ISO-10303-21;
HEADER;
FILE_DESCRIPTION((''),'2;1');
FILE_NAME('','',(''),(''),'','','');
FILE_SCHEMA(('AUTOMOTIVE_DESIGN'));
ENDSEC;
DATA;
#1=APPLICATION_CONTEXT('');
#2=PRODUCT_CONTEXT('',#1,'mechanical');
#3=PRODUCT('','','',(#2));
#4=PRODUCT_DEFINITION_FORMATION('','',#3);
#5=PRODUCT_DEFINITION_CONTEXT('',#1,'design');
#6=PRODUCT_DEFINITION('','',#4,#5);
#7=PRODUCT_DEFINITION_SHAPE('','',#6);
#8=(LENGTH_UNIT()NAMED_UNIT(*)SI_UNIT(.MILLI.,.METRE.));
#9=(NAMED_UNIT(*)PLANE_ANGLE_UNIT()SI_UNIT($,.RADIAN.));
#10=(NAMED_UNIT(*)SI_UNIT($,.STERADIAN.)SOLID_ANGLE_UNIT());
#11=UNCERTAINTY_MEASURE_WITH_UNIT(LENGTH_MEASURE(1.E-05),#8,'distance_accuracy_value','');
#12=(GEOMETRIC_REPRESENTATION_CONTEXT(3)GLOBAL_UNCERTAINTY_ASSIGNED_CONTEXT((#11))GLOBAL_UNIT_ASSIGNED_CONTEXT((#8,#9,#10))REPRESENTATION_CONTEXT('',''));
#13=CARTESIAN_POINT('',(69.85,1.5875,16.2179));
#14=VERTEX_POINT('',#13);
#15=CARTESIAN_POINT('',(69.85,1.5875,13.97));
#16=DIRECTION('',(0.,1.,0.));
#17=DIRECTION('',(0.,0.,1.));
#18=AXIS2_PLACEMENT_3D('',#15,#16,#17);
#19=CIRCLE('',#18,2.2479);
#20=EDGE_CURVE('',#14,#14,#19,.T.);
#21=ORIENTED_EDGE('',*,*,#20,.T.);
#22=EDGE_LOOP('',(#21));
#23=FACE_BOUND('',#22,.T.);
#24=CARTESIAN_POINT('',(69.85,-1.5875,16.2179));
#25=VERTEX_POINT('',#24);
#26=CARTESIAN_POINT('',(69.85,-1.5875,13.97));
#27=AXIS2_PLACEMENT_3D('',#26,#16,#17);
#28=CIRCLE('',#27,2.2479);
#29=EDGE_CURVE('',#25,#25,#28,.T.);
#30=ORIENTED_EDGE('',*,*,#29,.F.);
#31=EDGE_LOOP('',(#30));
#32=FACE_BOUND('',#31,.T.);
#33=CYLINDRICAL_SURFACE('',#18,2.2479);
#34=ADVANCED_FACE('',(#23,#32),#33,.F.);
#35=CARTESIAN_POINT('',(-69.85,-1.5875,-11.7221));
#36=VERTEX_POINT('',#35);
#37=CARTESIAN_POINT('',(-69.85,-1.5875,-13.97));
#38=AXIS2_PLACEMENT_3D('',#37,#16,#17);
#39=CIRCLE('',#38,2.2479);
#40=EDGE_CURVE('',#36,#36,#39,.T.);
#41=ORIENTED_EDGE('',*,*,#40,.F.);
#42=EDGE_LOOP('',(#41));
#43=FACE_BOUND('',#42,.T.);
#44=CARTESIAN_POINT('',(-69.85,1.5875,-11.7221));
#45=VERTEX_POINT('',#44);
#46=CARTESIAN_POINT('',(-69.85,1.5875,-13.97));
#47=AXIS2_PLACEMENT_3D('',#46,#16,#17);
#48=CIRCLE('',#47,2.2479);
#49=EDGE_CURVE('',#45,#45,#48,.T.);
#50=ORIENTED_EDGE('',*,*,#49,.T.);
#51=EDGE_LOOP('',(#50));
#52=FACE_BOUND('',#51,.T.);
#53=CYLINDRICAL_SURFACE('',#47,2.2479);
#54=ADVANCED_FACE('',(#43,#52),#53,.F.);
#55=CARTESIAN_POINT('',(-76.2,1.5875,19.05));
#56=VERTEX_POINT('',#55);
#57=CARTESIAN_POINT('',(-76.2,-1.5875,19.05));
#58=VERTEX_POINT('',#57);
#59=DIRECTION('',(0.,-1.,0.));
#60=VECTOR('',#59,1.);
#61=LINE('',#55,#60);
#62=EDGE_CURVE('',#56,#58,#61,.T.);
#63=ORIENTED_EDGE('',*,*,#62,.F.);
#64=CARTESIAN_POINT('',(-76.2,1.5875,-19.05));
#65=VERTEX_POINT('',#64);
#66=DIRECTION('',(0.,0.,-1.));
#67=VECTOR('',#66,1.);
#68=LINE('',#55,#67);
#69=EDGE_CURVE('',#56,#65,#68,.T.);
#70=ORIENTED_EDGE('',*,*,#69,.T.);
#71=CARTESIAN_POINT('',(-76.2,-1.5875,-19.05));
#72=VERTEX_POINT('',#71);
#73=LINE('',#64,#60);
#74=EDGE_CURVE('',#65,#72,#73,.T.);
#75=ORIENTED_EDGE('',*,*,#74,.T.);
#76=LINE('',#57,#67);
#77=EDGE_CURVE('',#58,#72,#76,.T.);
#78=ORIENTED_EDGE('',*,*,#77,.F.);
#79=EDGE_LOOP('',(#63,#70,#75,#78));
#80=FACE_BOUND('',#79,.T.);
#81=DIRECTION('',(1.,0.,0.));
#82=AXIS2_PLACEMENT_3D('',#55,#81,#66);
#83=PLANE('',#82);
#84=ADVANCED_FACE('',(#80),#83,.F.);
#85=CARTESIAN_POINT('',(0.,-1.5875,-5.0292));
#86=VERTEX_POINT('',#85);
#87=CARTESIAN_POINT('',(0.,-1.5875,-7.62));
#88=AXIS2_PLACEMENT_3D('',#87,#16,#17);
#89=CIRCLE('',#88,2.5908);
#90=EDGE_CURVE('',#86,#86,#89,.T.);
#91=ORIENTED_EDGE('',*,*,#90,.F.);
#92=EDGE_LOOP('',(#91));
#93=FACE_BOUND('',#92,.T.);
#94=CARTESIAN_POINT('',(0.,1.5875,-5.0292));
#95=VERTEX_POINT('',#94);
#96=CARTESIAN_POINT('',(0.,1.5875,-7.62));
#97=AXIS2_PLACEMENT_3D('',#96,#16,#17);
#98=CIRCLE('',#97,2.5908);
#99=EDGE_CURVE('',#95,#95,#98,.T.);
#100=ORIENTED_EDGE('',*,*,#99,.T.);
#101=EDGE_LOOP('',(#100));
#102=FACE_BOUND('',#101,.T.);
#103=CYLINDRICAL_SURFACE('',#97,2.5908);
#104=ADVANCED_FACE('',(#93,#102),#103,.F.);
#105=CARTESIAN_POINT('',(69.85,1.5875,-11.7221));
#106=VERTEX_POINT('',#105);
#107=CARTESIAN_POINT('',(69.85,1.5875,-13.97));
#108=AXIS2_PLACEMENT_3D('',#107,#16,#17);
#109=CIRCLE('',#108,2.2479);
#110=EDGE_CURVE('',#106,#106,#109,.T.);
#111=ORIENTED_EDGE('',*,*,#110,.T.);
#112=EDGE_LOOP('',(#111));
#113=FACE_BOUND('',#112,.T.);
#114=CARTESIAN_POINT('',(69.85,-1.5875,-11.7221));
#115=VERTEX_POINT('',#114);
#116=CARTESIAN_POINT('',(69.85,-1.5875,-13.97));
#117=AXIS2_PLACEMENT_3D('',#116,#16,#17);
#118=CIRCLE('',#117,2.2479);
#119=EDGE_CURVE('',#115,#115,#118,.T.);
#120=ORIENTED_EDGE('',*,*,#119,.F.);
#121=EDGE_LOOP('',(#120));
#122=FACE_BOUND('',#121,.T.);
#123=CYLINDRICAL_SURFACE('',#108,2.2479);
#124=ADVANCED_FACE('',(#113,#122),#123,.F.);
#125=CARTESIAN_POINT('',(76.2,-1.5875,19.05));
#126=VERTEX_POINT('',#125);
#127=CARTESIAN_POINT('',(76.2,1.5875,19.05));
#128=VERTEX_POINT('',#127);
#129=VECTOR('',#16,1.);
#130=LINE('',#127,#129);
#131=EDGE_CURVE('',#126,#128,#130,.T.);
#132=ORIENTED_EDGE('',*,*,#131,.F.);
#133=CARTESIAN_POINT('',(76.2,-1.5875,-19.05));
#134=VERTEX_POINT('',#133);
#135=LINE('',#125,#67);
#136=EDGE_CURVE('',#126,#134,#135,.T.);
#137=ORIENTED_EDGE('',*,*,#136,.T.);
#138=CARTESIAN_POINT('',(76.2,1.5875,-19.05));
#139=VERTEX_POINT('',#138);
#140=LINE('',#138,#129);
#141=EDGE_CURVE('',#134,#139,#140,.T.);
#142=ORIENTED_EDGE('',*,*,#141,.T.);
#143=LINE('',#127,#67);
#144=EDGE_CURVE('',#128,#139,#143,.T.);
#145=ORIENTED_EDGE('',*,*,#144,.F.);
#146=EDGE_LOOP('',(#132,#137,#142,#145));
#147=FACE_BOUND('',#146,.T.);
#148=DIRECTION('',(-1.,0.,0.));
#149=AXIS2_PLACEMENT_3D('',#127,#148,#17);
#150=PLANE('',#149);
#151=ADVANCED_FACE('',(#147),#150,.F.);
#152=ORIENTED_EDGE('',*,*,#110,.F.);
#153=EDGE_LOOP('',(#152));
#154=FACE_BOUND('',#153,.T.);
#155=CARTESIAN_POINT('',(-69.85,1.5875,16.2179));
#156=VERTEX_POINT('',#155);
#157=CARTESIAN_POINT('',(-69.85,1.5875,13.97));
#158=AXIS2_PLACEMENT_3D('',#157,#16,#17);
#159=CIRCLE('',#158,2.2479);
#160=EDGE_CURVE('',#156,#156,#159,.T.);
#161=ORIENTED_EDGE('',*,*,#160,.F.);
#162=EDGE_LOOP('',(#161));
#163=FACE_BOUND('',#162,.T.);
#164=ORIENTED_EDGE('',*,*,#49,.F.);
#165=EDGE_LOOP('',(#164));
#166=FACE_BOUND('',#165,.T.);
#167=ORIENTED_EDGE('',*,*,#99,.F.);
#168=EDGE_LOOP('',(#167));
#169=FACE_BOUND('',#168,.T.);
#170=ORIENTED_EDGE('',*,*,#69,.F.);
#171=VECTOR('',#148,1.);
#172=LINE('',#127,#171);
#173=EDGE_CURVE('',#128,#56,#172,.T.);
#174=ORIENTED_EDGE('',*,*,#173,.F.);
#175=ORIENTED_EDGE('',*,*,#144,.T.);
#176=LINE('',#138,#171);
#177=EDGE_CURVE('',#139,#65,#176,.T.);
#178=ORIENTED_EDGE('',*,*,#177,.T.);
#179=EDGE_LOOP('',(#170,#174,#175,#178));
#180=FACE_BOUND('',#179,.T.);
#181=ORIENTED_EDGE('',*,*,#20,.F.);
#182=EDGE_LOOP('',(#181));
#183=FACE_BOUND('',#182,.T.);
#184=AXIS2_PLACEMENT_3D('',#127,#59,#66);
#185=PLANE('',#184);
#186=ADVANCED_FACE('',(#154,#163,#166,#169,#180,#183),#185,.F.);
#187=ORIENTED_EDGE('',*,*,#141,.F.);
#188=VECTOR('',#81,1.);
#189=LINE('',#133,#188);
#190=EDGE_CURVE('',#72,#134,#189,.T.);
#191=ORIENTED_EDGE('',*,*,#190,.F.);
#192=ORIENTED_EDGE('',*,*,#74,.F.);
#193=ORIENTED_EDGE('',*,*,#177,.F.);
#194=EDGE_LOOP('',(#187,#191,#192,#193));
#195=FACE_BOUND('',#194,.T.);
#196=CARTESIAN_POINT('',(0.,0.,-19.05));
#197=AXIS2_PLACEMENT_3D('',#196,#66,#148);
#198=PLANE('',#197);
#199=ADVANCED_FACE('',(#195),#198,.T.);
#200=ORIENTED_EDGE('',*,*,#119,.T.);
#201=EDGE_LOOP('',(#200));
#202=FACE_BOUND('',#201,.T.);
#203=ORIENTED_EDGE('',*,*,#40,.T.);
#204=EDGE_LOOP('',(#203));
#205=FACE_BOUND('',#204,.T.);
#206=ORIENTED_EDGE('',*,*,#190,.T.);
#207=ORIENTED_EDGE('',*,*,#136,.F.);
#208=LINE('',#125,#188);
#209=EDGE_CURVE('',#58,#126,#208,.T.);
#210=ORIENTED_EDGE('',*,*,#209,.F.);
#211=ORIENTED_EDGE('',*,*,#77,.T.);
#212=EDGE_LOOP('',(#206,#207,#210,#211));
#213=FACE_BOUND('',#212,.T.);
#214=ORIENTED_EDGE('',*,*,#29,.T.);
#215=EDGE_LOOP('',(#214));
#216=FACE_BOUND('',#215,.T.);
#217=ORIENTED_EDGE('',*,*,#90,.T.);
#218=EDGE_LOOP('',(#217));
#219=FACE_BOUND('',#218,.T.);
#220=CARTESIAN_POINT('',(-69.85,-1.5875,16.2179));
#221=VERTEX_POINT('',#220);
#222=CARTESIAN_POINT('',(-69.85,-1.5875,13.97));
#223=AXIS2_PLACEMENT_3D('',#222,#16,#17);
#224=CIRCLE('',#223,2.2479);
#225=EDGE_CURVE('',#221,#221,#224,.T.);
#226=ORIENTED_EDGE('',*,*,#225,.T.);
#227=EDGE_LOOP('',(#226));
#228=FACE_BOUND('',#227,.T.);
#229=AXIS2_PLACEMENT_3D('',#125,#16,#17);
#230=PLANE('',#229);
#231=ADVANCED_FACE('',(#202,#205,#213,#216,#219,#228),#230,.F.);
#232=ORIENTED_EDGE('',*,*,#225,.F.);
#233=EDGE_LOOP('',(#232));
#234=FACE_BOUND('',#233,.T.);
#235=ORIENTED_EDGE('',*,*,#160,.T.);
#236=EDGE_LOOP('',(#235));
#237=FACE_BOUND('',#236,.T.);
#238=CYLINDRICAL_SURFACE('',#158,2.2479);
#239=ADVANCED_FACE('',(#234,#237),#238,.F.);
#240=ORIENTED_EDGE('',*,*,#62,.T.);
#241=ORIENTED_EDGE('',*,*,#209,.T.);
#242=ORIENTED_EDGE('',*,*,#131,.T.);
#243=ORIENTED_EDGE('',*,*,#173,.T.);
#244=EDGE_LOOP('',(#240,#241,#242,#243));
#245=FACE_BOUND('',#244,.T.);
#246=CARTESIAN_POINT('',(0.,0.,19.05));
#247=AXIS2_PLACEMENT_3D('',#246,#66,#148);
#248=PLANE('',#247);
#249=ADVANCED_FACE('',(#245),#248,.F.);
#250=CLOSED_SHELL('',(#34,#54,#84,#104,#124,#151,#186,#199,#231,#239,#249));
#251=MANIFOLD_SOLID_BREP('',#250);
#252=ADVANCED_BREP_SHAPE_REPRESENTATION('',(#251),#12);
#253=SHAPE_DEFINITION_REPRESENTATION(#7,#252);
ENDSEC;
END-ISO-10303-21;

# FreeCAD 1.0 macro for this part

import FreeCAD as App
import Part
import Sketcher
from FreeCAD import Vector
Q = App.Units.Quantity

doc = App.newDocument("Part")
body = doc.addObject("PartDesign::Body", "Body")

# Sketch on XY plane
sketch1 = body.newObject("Sketcher::SketchObject", "Sketch")
sketch1.AttachmentSupport = (doc.getObject("XY_Plane"), [""])
sketch1.MapMode = "FlatFace"
sketch1.addGeometry([
    Part.LineSegment(Vector(-76.2, 1.5875, 0), Vector(-76.2, -1.5875, 0)),
    Part.LineSegment(Vector(-76.2, -1.5875, 0), Vector(76.2, -1.5875, 0)),
    Part.LineSegment(Vector(76.2, -1.5875, 0), Vector(76.2, 1.5875, 0)),
    Part.LineSegment(Vector(76.2, 1.5875, 0), Vector(-76.2, 1.5875, 0)),
], False)
sketch1.addConstraint([
    Sketcher.Constraint("Coincident", 0, 2, 1, 1),
    Sketcher.Constraint("Coincident", 1, 2, 2, 1),
    Sketcher.Constraint("Coincident", 2, 2, 3, 1),
    Sketcher.Constraint("Coincident", 3, 2, 0, 1),
    Sketcher.Constraint("Vertical", 0),
    Sketcher.Constraint("Horizontal", 1),
    Sketcher.Constraint("Vertical", 2),
    Sketcher.Constraint("Horizontal", 3),
    Sketcher.Constraint("Symmetric", 0, 2, 2, 2, -1, 1),
    Sketcher.Constraint("DistanceX", 1, 1, 1, 2, Q("6 in")),
    Sketcher.Constraint("DistanceY", 0, 2, 0, 1, Q("0.125 in")),
])
pad1 = body.newObject("PartDesign::Pad", "Pad")
pad1.Profile = sketch1
pad1.Type = "TwoLengths"
pad1.Length = Q("0.75 in")
pad1.Length2 = Q("0.75 in")

# Sketch on XZ plane
sketch2 = body.newObject("Sketcher::SketchObject", "Sketch001")
sketch2.AttachmentSupport = (doc.getObject("XZ_Plane"), [""])
sketch2.MapMode = "FlatFace"
sketch2.AttachmentOffset = App.Placement(Vector(0, 0, -0.0625 * 25.4), App.Rotation())
sketch2.addGeometry([
    Part.Circle(Vector(-69.85, -13.97, 0), Vector(0, 0, 1), 2.2479),
    Part.Circle(Vector(-69.85, 13.97, 0), Vector(0, 0, 1), 2.2479),
], False)
sketch2.addConstraint([
    Sketcher.Constraint("Equal", 0, 1),
    Sketcher.Constraint("Symmetric", 0, 3, 1, 3, -1),
    Sketcher.Constraint("Diameter", 0, Q("0.177 in")),
    Sketcher.Constraint("DistanceY", 0, 3, 1, 3, Q("1.1 in")),
    Sketcher.Constraint("DistanceX", 0, 3, -1, 1, Q("2.75 in")),
])
doc.recompute()
hole = body.newObject("PartDesign::Hole", "Hole")
hole.Profile = sketch2
hole.ThreadType = "None"
hole.Diameter = Q("0.177 in")
hole.DepthType = "ThroughAll"
hole.Reversed = True
doc.recompute()

mirrored = body.newObject("PartDesign::Mirrored", "Mirrored")
mirrored.Originals = [hole]
mirrored.MirrorPlane = (doc.getObject("YZ_Plane"), [""])
body.Tip = mirrored

# Sketch on XZ plane
sketch3 = body.newObject("Sketcher::SketchObject", "Sketch002")
sketch3.AttachmentSupport = (doc.getObject("XZ_Plane"), [""])
sketch3.MapMode = "FlatFace"
sketch3.AttachmentOffset = App.Placement(Vector(0, 0, -0.0625 * 25.4), App.Rotation())
sketch3.addGeometry(Part.Circle(Vector(0, -7.62, 0), Vector(0, 0, 1), 2.5908), False)
sketch3.addConstraint([
    Sketcher.Constraint("PointOnObject", 0, 3, -2),
    Sketcher.Constraint("Diameter", 0, Q("0.204 in")),
    Sketcher.Constraint("DistanceY", 0, 3, -1, 1, Q("0.3 in")),
])
doc.recompute()
hole2 = body.newObject("PartDesign::Hole", "Hole001")
hole2.Profile = sketch3
hole2.ThreadType = "None"
hole2.Diameter = Q("0.204 in")
hole2.DepthType = "ThroughAll"
hole2.Reversed = True

doc.recompute()
